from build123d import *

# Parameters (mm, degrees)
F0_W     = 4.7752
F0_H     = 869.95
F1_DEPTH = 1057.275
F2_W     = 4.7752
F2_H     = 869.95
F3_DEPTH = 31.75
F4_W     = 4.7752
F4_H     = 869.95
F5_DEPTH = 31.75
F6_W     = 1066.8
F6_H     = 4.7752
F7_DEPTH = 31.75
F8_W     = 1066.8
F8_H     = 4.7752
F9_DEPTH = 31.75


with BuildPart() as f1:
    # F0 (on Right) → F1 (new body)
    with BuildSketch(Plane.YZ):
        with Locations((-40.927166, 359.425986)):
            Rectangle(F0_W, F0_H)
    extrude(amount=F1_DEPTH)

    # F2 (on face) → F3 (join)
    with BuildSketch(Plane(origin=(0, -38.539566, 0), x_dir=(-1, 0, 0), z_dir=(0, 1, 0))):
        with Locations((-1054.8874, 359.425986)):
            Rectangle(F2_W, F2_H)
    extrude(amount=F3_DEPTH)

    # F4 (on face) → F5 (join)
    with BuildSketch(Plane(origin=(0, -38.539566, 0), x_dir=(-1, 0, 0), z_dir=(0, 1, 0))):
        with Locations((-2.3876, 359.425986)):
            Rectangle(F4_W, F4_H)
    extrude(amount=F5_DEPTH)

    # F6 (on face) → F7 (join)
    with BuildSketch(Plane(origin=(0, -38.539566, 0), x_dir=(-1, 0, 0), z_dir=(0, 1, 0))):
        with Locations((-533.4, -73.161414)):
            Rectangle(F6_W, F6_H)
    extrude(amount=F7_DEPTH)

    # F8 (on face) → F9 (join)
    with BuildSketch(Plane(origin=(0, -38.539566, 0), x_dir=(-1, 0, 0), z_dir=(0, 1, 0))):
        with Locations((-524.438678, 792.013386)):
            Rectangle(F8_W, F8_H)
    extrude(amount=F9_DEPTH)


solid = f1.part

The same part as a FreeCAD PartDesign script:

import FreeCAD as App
import Part
import Sketcher

V = App.Vector
Q = App.Units.Quantity


def add_polygon(sketch, points):
    """Adds a closed chain of lines whose ends are joined by coincident constraints."""
    first, n = sketch.GeometryCount, len(points)
    for a, b in zip(points, points[1:] + points[:1]):
        sketch.addGeometry(Part.LineSegment(App.Vector(*a, 0), App.Vector(*b, 0)), False)
    for i in range(n):
        sketch.addConstraint(Sketcher.Constraint("Coincident", first + i, 2, first + (i + 1) % n, 1))

doc = App.newDocument("Part")
params = doc.addObject("Spreadsheet::Sheet", "Params")
for row, (alias, value) in enumerate([
    ("sketch1_height", "34.25 in"),
    ("sketch1_width", "0.188 in"),
    ("pad1_length", "41.625 in"),
    ("sketch2_height", "34.25 in"),
    ("sketch2_width", "0.188 in"),
    ("pad2_length", "1.25 in"),
    ("sketch3_height", "34.25 in"),
    ("sketch3_width", "0.188 in"),
    ("pad3_length", "1.25 in"),
    ("sketch4_width", "42 in"),
    ("sketch4_height", "0.188 in"),
    ("pad4_length", "1.25 in"),
    ("sketch5_width", "42 in"),
    ("sketch5_height", "0.188 in"),
    ("pad5_length", "1.25 in"),
], start=1):
    params.set(f"A{row}", alias)
    params.set(f"B{row}", "=" + value)
    params.setAlias(f"B{row}", alias)

body = doc.addObject("PartDesign::Body", "Body")

sketch1 = body.newObject("Sketcher::SketchObject", "Sketch")
sketch1.AttachmentSupport = (doc.getObject("YZ_Plane"), [""])
sketch1.MapMode = "FlatFace"
add_polygon(sketch1, [(-43.3, 794.4), (-43.3, -75.5), (-38.5, -75.5), (-38.5, 794.4)])
sketch1.addConstraint([
    Sketcher.Constraint("Vertical", 0),
    Sketcher.Constraint("Horizontal", 1),
    Sketcher.Constraint("Vertical", 2),
    Sketcher.Constraint("Horizontal", 3),
    Sketcher.Constraint("DistanceY", 0, 2, 0, 1, Q("34.25 in")),
    Sketcher.Constraint("DistanceX", 1, 1, 1, 2, Q("0.188 in")),
    Sketcher.Constraint("DistanceX", 0, 2, -1, 1, Q("43.314766 mm")),
    Sketcher.Constraint("DistanceY", 0, 2, -1, 1, Q("75.549014 mm")),
])
sketch1.setExpression("Constraints[8]", "Params.sketch1_height")
sketch1.setExpression("Constraints[9]", "Params.sketch1_width")
pad1 = body.newObject("PartDesign::Pad", "Pad")
pad1.Profile = sketch1
pad1.setExpression("Length", "Params.pad1_length")

sketch2 = body.newObject("Sketcher::SketchObject", "Sketch001")
sketch2.AttachmentSupport = (doc.getObject("XZ_Plane"), [""])
sketch2.MapMode = "FlatFace"
sketch2.AttachmentOffset = App.Placement(V(0, 0, 38.539566), App.Rotation())
add_polygon(sketch2, [(1057.3, 794.4), (1057.3, -75.5), (1052.5, -75.5), (1052.5, 794.4)])
sketch2.addConstraint([
    Sketcher.Constraint("Vertical", 0),
    Sketcher.Constraint("Horizontal", 1),
    Sketcher.Constraint("Vertical", 2),
    Sketcher.Constraint("Horizontal", 3),
    Sketcher.Constraint("DistanceY", 0, 2, 0, 1, Q("34.25 in")),
    Sketcher.Constraint("DistanceX", 1, 2, 1, 1, Q("0.188 in")),
    Sketcher.Constraint("DistanceX", -1, 1, 0, 2, Q("41.625 in")),
    Sketcher.Constraint("DistanceY", 0, 2, -1, 1, Q("75.549014 mm")),
])
sketch2.setExpression("Constraints[8]", "Params.sketch2_height")
sketch2.setExpression("Constraints[9]", "Params.sketch2_width")
pad2 = body.newObject("PartDesign::Pad", "Pad001")
pad2.Profile = sketch2
pad2.setExpression("Length", "Params.pad2_length")
pad2.Reversed = True

sketch3 = body.newObject("Sketcher::SketchObject", "Sketch002")
sketch3.AttachmentSupport = (doc.getObject("XZ_Plane"), [""])
sketch3.MapMode = "FlatFace"
sketch3.AttachmentOffset = App.Placement(V(0, 0, 38.539566), App.Rotation())
add_polygon(sketch3, [(4.8, 794.4), (4.8, -75.5), (0, -75.5), (0, 794.4)])
sketch3.addConstraint([
    Sketcher.Constraint("Vertical", 0),
    Sketcher.Constraint("Horizontal", 1),
    Sketcher.Constraint("Vertical", 2),
    Sketcher.Constraint("Horizontal", 3),
    Sketcher.Constraint("PointOnObject", 1, 2, -2),
    Sketcher.Constraint("DistanceY", 0, 2, 0, 1, Q("34.25 in")),
    Sketcher.Constraint("DistanceX", 1, 2, 1, 1, Q("0.188 in")),
    Sketcher.Constraint("DistanceY", 0, 2, -1, 1, Q("75.549014 mm")),
])
sketch3.setExpression("Constraints[9]", "Params.sketch3_height")
sketch3.setExpression("Constraints[10]", "Params.sketch3_width")
pad3 = body.newObject("PartDesign::Pad", "Pad002")
pad3.Profile = sketch3
pad3.setExpression("Length", "Params.pad3_length")
pad3.Reversed = True

sketch4 = body.newObject("Sketcher::SketchObject", "Sketch003")
sketch4.AttachmentSupport = (doc.getObject("XZ_Plane"), [""])
sketch4.MapMode = "FlatFace"
sketch4.AttachmentOffset = App.Placement(V(0, 0, 38.539566), App.Rotation())
add_polygon(sketch4, [(1066.8, -70.8), (1066.8, -75.5), (0, -75.5), (0, -70.8)])
sketch4.addConstraint([
    Sketcher.Constraint("Vertical", 0),
    Sketcher.Constraint("Horizontal", 1),
    Sketcher.Constraint("Vertical", 2),
    Sketcher.Constraint("Horizontal", 3),
    Sketcher.Constraint("PointOnObject", 1, 2, -2),
    Sketcher.Constraint("DistanceX", 1, 2, 1, 1, Q("42 in")),
    Sketcher.Constraint("DistanceY", 0, 2, 0, 1, Q("0.188 in")),
    Sketcher.Constraint("DistanceY", 0, 2, -1, 1, Q("75.549014 mm")),
])
sketch4.setExpression("Constraints[9]", "Params.sketch4_width")
sketch4.setExpression("Constraints[10]", "Params.sketch4_height")
pad4 = body.newObject("PartDesign::Pad", "Pad003")
pad4.Profile = sketch4
pad4.setExpression("Length", "Params.pad4_length")
pad4.Reversed = True

sketch5 = body.newObject("Sketcher::SketchObject", "Sketch004")
sketch5.AttachmentSupport = (doc.getObject("XZ_Plane"), [""])
sketch5.MapMode = "FlatFace"
sketch5.AttachmentOffset = App.Placement(V(0, 0, 38.539566), App.Rotation())
add_polygon(sketch5, [(1057.8, 794.4), (1057.8, 789.6), (-9, 789.6), (-9, 794.4)])
sketch5.addConstraint([
    Sketcher.Constraint("Vertical", 0),
    Sketcher.Constraint("Horizontal", 1),
    Sketcher.Constraint("Vertical", 2),
    Sketcher.Constraint("Horizontal", 3),
    Sketcher.Constraint("DistanceX", 1, 2, 1, 1, Q("42 in")),
    Sketcher.Constraint("DistanceY", 0, 2, 0, 1, Q("0.188 in")),
    Sketcher.Constraint("DistanceX", -1, 1, 0, 2, Q("1057.838678 mm")),
    Sketcher.Constraint("DistanceY", -1, 1, 0, 2, Q("789.625786 mm")),
])
sketch5.setExpression("Constraints[8]", "Params.sketch5_width")
sketch5.setExpression("Constraints[9]", "Params.sketch5_height")
pad5 = body.newObject("PartDesign::Pad", "Pad004")
pad5.Profile = sketch5
pad5.setExpression("Length", "Params.pad5_length")
pad5.Reversed = True

doc.recompute()
